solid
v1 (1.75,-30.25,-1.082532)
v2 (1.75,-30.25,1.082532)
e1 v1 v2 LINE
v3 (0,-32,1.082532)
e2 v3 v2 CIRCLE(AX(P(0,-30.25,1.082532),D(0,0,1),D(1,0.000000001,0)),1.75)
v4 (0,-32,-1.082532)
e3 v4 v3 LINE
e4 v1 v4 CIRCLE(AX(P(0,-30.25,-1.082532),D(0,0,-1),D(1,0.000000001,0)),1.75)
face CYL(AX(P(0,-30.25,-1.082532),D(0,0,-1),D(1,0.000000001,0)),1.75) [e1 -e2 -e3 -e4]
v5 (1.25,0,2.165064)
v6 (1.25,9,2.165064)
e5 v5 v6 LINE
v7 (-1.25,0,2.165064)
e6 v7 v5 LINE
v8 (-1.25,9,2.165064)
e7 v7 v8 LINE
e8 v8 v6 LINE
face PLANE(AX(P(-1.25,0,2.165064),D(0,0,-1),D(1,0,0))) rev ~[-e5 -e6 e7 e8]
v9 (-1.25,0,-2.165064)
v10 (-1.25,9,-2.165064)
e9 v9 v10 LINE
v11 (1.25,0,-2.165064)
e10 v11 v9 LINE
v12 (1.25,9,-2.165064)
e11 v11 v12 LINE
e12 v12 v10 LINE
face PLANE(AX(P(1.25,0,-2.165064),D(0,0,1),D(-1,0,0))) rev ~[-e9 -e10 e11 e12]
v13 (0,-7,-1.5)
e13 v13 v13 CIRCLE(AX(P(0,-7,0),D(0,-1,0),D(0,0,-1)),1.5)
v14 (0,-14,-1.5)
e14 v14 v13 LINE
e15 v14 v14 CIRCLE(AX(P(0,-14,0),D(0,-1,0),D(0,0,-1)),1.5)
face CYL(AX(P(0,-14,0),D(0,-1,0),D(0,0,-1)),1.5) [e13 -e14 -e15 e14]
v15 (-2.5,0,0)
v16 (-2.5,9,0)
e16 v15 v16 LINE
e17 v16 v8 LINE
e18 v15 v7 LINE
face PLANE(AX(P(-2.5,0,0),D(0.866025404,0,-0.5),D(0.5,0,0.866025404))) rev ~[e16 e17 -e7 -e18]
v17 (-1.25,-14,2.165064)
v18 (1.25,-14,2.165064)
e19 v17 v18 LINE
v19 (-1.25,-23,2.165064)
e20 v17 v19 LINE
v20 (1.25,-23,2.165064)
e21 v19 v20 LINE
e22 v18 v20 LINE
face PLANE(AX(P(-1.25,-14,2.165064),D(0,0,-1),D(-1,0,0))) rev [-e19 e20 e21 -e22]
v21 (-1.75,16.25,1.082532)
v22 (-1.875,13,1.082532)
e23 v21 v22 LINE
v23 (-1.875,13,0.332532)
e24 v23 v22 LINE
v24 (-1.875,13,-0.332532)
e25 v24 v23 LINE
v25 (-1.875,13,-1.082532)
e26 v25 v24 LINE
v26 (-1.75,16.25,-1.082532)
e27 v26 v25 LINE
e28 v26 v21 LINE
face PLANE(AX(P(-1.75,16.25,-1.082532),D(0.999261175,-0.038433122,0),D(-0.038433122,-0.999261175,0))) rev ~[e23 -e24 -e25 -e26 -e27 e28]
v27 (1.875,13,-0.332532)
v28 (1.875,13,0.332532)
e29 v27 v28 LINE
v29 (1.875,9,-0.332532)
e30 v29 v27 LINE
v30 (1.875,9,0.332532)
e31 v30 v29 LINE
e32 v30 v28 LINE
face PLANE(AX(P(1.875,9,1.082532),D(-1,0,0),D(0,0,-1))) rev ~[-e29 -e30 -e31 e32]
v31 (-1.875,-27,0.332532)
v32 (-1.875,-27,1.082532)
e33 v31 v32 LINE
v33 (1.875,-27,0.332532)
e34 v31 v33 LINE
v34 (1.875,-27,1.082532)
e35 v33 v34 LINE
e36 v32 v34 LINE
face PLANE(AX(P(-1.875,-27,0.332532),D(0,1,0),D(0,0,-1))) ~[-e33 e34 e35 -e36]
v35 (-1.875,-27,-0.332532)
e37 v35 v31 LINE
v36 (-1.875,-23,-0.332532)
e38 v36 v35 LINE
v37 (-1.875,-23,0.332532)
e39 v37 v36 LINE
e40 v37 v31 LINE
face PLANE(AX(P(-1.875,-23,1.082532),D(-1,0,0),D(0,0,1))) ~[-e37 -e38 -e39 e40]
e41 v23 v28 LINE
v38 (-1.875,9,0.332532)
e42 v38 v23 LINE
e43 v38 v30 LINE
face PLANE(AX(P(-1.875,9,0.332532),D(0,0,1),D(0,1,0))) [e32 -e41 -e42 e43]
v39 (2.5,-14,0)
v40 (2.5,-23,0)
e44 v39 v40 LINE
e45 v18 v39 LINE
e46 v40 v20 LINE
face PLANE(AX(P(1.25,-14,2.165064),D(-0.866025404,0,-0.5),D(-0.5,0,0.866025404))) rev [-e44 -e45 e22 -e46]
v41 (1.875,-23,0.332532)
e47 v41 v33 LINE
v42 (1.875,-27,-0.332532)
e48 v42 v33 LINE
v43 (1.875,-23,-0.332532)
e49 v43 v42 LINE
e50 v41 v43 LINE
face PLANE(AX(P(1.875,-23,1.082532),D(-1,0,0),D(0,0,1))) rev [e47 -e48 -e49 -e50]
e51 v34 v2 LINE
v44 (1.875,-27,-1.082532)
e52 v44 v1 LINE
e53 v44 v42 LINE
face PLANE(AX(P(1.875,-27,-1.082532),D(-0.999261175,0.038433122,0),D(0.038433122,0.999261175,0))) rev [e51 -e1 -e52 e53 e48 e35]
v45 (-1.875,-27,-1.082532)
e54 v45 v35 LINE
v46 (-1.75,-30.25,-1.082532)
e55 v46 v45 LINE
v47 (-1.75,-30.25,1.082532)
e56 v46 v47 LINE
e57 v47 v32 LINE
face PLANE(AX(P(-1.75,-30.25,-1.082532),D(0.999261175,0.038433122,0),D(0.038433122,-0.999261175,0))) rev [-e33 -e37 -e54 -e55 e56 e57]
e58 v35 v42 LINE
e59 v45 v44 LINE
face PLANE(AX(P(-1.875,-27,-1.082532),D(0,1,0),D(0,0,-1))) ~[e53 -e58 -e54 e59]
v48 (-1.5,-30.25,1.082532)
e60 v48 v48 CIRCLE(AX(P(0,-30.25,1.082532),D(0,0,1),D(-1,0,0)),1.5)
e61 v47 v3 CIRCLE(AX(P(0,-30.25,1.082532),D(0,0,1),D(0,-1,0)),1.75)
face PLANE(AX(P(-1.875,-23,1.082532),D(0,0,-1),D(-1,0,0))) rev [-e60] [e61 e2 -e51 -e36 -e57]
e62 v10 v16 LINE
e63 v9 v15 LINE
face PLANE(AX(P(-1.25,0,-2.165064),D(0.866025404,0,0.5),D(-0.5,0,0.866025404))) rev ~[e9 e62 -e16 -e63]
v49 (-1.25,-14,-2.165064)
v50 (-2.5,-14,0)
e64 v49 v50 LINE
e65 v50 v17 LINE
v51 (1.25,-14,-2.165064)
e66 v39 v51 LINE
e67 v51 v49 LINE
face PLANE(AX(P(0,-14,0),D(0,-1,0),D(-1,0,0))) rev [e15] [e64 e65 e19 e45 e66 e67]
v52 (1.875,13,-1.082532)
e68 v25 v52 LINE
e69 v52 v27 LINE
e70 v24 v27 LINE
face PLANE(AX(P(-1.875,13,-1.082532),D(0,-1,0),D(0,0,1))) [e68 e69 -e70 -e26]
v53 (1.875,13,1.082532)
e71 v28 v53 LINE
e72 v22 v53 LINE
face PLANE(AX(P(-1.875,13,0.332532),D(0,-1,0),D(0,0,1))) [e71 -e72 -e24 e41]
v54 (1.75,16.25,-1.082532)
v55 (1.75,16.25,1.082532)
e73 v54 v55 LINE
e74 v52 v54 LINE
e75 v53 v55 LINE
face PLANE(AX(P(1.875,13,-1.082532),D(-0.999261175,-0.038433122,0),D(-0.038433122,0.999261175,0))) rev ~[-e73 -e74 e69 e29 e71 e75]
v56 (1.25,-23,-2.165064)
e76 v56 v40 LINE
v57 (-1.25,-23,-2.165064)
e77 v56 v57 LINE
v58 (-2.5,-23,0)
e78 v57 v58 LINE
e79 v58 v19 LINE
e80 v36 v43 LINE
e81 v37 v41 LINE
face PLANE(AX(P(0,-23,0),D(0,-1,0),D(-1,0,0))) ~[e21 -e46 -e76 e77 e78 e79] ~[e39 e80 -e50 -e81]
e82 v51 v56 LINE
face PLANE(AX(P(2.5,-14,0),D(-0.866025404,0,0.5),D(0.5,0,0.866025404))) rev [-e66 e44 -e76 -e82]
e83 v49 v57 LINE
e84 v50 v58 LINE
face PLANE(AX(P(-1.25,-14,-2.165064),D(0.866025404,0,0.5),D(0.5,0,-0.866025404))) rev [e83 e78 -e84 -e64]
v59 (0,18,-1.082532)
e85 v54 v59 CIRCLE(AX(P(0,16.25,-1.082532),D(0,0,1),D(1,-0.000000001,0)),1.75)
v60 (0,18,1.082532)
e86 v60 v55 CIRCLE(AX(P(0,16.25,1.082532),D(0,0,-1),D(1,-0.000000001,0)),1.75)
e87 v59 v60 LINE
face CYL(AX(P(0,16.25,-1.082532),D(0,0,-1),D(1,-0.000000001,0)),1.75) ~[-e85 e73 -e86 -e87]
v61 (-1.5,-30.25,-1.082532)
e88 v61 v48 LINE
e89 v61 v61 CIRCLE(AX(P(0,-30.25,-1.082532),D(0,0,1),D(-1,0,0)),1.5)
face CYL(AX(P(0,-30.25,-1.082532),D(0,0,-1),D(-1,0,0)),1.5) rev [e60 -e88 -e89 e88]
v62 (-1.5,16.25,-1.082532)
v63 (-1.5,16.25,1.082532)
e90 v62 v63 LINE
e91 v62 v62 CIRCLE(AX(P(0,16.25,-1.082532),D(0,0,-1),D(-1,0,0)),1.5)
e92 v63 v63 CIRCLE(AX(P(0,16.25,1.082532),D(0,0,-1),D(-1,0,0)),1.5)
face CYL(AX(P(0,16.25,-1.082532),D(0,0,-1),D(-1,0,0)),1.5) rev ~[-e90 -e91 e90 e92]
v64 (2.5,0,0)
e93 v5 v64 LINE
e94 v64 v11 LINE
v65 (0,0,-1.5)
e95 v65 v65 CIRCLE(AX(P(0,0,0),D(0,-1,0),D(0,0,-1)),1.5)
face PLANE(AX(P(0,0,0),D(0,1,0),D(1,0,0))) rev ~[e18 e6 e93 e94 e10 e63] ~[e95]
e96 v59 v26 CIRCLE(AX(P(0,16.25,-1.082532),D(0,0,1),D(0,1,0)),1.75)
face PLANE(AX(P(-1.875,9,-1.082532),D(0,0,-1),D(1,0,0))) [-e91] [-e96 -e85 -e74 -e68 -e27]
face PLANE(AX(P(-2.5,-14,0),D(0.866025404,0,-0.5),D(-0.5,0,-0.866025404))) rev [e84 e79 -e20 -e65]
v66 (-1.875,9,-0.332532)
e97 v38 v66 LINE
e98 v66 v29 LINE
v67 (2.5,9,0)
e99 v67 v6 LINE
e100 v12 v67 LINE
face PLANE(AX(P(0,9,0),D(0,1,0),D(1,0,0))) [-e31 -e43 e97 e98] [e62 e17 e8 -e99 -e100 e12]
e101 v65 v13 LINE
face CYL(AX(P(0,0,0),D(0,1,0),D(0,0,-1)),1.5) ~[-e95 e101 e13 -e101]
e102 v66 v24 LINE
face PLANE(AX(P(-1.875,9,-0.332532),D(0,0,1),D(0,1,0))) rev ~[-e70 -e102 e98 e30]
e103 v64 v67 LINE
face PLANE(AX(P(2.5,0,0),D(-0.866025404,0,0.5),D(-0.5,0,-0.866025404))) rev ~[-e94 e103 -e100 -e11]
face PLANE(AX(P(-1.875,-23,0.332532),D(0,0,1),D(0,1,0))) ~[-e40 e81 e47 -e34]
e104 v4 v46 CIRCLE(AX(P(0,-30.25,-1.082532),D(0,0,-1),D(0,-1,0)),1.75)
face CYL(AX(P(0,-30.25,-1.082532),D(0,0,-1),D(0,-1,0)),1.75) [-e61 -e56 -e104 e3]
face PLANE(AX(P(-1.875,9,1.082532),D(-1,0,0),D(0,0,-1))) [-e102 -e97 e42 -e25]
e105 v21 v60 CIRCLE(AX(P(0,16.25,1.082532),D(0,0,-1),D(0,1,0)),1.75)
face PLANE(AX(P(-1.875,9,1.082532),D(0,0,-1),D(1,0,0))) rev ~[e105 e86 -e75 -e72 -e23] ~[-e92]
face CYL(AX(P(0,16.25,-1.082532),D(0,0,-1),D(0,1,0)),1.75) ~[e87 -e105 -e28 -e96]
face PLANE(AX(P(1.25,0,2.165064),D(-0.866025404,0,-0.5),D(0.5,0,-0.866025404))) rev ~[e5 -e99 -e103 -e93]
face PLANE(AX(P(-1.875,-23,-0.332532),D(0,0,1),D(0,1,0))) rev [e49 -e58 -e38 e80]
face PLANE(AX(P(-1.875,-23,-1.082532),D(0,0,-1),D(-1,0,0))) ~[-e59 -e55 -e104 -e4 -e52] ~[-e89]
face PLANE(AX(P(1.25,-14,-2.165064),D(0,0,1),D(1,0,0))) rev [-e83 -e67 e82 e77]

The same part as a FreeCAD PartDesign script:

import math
import FreeCAD as App
import Part
import Sketcher
from FreeCAD import Vector
Q = App.Units.Quantity


def add_polygon(sketch, points):
    """Adds a closed chain of lines whose ends are joined by coincident constraints."""
    first, n = sketch.GeometryCount, len(points)
    for a, b in zip(points, points[1:] + points[:1]):
        sketch.addGeometry(Part.LineSegment(App.Vector(*a, 0), App.Vector(*b, 0)), False)
    for i in range(n):
        sketch.addConstraint(Sketcher.Constraint("Coincident", first + i, 2, first + (i + 1) % n, 1))

doc = App.newDocument("Part")
body = doc.addObject("PartDesign::Body", "Body")

# Sketch on XZ plane
sketch1 = doc.addObject("Sketcher::SketchObject", "Sketch")
body.addObject(sketch1)
sketch1.AttachmentSupport = (doc.XZ_Plane, [""])
sketch1.MapMode = "FlatFace"
add_polygon(sketch1, [(2.5, 0), (1.2, -2.2), (-1.2, -2.2), (-2.5, 0), (-1.2, 2.2), (1.2, 2.2)])  # lines 0-5
sketch1.addConstraint([
    Sketcher.Constraint("Horizontal", 1),
    Sketcher.Constraint("Horizontal", 4),
    Sketcher.Constraint("Symmetric", 0, 2, 3, 2, -1, 1),
    Sketcher.Constraint("Symmetric", 2, 2, 5, 2, -1, 1),
    Sketcher.Constraint("PointOnObject", 2, 2, -1),
    Sketcher.Constraint("Parallel", 2, 5),
    Sketcher.Constraint("Vertical", 1, 2, 3, 2),
    Sketcher.Constraint("Angle", 0, Q("-120 deg")),
    Sketcher.Constraint("DistanceX", 1, 2, 1, 1, Q("2.5 mm")),
    Sketcher.Constraint("DistanceX", 2, 2, 5, 2, Q("5 mm")),
])
pad1 = doc.addObject("PartDesign::Pad", "Pad")
body.addObject(pad1)
pad1.Profile = sketch1
pad1.Length = 9
pad1.Reversed = True

# Sketch on XZ plane
sketch2 = doc.addObject("Sketcher::SketchObject", "Sketch001")
body.addObject(sketch2)
sketch2.AttachmentSupport = (doc.XZ_Plane, [""])
sketch2.MapMode = "FlatFace"
sketch2.addGeometry(Part.Circle(Vector(0, 0, 0), Vector(0, 0, 1), 1.5), False)
sketch2.addConstraint([
    Sketcher.Constraint("Coincident", 0, 3, -1, 1),
    Sketcher.Constraint("Diameter", 0, Q("3 mm")),
])
pad2 = doc.addObject("PartDesign::Pad", "Pad001")
body.addObject(pad2)
pad2.Profile = sketch2
pad2.Length = 7

# Sketch on XZ plane
sketch3 = doc.addObject("Sketcher::SketchObject", "Sketch002")
body.addObject(sketch3)
sketch3.AttachmentSupport = (doc.XZ_Plane, [""])
sketch3.MapMode = "FlatFace"
sketch3.AttachmentOffset = App.Placement(Vector(0, 0, -9), App.Rotation())
add_polygon(sketch3, [(-1.9, -1.1), (-1.9, 1.1), (1.9, 1.1), (1.9, -1.1)])  # lines 0-3
sketch3.addConstraint([
    Sketcher.Constraint("Vertical", 0),
    Sketcher.Constraint("Horizontal", 1),
    Sketcher.Constraint("Vertical", 2),
    Sketcher.Constraint("Horizontal", 3),
    Sketcher.Constraint("Symmetric", 0, 2, 2, 2, -1, 1),
    Sketcher.Constraint("DistanceX", 1, 1, 1, 2, Q("3.75 mm")),
    Sketcher.Constraint("DistanceY", 0, 1, 0, 2, Q("2.165064 mm")),
])
pad3 = doc.addObject("PartDesign::Pad", "Pad002")
body.addObject(pad3)
pad3.Profile = sketch3
pad3.Length = 9
pad3.Reversed = True

# Sketch on YZ plane
sketch4 = doc.addObject("Sketcher::SketchObject", "Sketch003")
body.addObject(sketch4)
sketch4.AttachmentSupport = (doc.YZ_Plane, [""])
sketch4.MapMode = "FlatFace"
sketch4.AttachmentOffset = App.Placement(Vector(0, 0, -1.875), App.Rotation())
add_polygon(sketch4, [(13, -1.1), (9, -1.1), (9, -0.3), (13, -0.3)])  # lines 0-3
add_polygon(sketch4, [(13, 0.3), (9, 0.3), (9, 1.1), (13, 1.1)])  # lines 4-7
sketch4.addConstraint([
    Sketcher.Constraint("Horizontal", 0),
    Sketcher.Constraint("Vertical", 1),
    Sketcher.Constraint("Horizontal", 2),
    Sketcher.Constraint("Vertical", 3),
    Sketcher.Constraint("Horizontal", 4),
    Sketcher.Constraint("Vertical", 5),
    Sketcher.Constraint("Horizontal", 6),
    Sketcher.Constraint("Vertical", 7),
    Sketcher.Constraint("Symmetric", 1, 2, 4, 2, -1),
    Sketcher.Constraint("Symmetric", 3, 2, 6, 2, -1),
    Sketcher.Constraint("DistanceX", 0, 2, 0, 1, Q("4 mm")),
    Sketcher.Constraint("DistanceX", -1, 1, 0, 2, Q("9 mm")),
    Sketcher.Constraint("DistanceY", 1, 1, 1, 2, Q("0.75 mm")),
    Sketcher.Constraint("DistanceY", 0, 2, -1, 1, Q("1.082532 mm")),
])
pocket1 = doc.addObject("PartDesign::Pocket", "Pocket")
body.addObject(pocket1)
pocket1.Profile = sketch4
pocket1.Type = "ThroughAll"
pocket1.Reversed = True

# Sketch on XY plane
sketch5 = doc.addObject("Sketcher::SketchObject", "Sketch004")
body.addObject(sketch5)
sketch5.AttachmentSupport = (doc.XY_Plane, [""])
sketch5.MapMode = "FlatFace"
sketch5.AttachmentOffset = App.Placement(Vector(0, 0, -1.082532), App.Rotation())
sketch5.addGeometry([
    Part.Circle(Vector(0, 16.2, 0), Vector(0, 0, 1), 1.5),  # 0
    Part.ArcOfCircle(Part.Circle(Vector(0, 16.3, 0), Vector(0, 0, 1), 1.7), math.radians(0), math.radians(90)),  # 1
    Part.LineSegment(Vector(0, 18, 0), Vector(1.9, 18, 0)),  # 2
    Part.LineSegment(Vector(1.9, 18, 0), Vector(1.9, 13, 0)),  # 3
    Part.LineSegment(Vector(1.9, 13, 0), Vector(1.8, 16.2, 0)),  # 4
    Part.ArcOfCircle(Part.Circle(Vector(0, 16.3, 0), Vector(0, 0, 1), 1.7), math.radians(90), math.radians(180)),  # 5
    Part.LineSegment(Vector(-1.8, 16.2, 0), Vector(-1.9, 13, 0)),  # 6
    Part.LineSegment(Vector(-1.9, 13, 0), Vector(-1.9, 18, 0)),  # 7
    Part.LineSegment(Vector(-1.9, 18, 0), Vector(0, 18, 0)),  # 8
], False)
sketch5.addConstraint([
    Sketcher.Constraint("Tangent", 1, 2, 2, 1),
    Sketcher.Constraint("Coincident", 2, 2, 3, 1),
    Sketcher.Constraint("Coincident", 3, 2, 4, 1),
    Sketcher.Constraint("Coincident", 4, 2, 1, 1),
    Sketcher.Constraint("Coincident", 5, 2, 6, 1),
    Sketcher.Constraint("Coincident", 6, 2, 7, 1),
    Sketcher.Constraint("Coincident", 7, 2, 8, 1),
    Sketcher.Constraint("Tangent", 8, 2, 5, 1),
    Sketcher.Constraint("Horizontal", 2),
    Sketcher.Constraint("Vertical", 3),
    Sketcher.Constraint("Vertical", 7),
    Sketcher.Constraint("Horizontal", 8),
    Sketcher.Constraint("Coincident", 1, 3, 0, 3),
    Sketcher.Constraint("Coincident", 5, 3, 0, 3),
    Sketcher.Constraint("Equal", 1, 5),
    Sketcher.Constraint("Symmetric", 4, 2, 5, 2, -2),
    Sketcher.Constraint("Symmetric", 3, 2, 6, 2, -2),
    Sketcher.Constraint("Horizontal", 5, 3, 4, 2),
    Sketcher.Constraint("Diameter", 0, Q("3 mm")),
    Sketcher.Constraint("DistanceY", 3, 2, 3, 1, Q("5 mm")),
    Sketcher.Constraint("Radius", 1, Q("1.75 mm")),
    Sketcher.Constraint("DistanceY", -1, 1, 1, 2, Q("18 mm")),
    Sketcher.Constraint("DistanceX", 2, 1, 2, 2, Q("1.875 mm")),
])
pocket2 = doc.addObject("PartDesign::Pocket", "Pocket001")
body.addObject(pocket2)
pocket2.Profile = sketch5
pocket2.Type = "ThroughAll"
pocket2.Reversed = True
body2 = doc.addObject("PartDesign::Body", "Body001")
doc.recompute()

body2.BaseFeature = body
doc.recompute()

mirroring = doc.addObject("Part::Mirroring", "Mirroring")
mirroring.Source = body
mirroring.Base = Vector(0, -7, 0)
mirroring.Normal = Vector(0, -1, 0)
body3 = doc.addObject("PartDesign::Body", "Body002")
body3.BaseFeature = mirroring
boolean = doc.addObject("PartDesign::Boolean", "Boolean")
body2.addObject(boolean)
boolean.Type = "Fuse"
boolean.addObjects([body3])
doc.recompute()
mirroring.Visibility = False

doc.recompute()
